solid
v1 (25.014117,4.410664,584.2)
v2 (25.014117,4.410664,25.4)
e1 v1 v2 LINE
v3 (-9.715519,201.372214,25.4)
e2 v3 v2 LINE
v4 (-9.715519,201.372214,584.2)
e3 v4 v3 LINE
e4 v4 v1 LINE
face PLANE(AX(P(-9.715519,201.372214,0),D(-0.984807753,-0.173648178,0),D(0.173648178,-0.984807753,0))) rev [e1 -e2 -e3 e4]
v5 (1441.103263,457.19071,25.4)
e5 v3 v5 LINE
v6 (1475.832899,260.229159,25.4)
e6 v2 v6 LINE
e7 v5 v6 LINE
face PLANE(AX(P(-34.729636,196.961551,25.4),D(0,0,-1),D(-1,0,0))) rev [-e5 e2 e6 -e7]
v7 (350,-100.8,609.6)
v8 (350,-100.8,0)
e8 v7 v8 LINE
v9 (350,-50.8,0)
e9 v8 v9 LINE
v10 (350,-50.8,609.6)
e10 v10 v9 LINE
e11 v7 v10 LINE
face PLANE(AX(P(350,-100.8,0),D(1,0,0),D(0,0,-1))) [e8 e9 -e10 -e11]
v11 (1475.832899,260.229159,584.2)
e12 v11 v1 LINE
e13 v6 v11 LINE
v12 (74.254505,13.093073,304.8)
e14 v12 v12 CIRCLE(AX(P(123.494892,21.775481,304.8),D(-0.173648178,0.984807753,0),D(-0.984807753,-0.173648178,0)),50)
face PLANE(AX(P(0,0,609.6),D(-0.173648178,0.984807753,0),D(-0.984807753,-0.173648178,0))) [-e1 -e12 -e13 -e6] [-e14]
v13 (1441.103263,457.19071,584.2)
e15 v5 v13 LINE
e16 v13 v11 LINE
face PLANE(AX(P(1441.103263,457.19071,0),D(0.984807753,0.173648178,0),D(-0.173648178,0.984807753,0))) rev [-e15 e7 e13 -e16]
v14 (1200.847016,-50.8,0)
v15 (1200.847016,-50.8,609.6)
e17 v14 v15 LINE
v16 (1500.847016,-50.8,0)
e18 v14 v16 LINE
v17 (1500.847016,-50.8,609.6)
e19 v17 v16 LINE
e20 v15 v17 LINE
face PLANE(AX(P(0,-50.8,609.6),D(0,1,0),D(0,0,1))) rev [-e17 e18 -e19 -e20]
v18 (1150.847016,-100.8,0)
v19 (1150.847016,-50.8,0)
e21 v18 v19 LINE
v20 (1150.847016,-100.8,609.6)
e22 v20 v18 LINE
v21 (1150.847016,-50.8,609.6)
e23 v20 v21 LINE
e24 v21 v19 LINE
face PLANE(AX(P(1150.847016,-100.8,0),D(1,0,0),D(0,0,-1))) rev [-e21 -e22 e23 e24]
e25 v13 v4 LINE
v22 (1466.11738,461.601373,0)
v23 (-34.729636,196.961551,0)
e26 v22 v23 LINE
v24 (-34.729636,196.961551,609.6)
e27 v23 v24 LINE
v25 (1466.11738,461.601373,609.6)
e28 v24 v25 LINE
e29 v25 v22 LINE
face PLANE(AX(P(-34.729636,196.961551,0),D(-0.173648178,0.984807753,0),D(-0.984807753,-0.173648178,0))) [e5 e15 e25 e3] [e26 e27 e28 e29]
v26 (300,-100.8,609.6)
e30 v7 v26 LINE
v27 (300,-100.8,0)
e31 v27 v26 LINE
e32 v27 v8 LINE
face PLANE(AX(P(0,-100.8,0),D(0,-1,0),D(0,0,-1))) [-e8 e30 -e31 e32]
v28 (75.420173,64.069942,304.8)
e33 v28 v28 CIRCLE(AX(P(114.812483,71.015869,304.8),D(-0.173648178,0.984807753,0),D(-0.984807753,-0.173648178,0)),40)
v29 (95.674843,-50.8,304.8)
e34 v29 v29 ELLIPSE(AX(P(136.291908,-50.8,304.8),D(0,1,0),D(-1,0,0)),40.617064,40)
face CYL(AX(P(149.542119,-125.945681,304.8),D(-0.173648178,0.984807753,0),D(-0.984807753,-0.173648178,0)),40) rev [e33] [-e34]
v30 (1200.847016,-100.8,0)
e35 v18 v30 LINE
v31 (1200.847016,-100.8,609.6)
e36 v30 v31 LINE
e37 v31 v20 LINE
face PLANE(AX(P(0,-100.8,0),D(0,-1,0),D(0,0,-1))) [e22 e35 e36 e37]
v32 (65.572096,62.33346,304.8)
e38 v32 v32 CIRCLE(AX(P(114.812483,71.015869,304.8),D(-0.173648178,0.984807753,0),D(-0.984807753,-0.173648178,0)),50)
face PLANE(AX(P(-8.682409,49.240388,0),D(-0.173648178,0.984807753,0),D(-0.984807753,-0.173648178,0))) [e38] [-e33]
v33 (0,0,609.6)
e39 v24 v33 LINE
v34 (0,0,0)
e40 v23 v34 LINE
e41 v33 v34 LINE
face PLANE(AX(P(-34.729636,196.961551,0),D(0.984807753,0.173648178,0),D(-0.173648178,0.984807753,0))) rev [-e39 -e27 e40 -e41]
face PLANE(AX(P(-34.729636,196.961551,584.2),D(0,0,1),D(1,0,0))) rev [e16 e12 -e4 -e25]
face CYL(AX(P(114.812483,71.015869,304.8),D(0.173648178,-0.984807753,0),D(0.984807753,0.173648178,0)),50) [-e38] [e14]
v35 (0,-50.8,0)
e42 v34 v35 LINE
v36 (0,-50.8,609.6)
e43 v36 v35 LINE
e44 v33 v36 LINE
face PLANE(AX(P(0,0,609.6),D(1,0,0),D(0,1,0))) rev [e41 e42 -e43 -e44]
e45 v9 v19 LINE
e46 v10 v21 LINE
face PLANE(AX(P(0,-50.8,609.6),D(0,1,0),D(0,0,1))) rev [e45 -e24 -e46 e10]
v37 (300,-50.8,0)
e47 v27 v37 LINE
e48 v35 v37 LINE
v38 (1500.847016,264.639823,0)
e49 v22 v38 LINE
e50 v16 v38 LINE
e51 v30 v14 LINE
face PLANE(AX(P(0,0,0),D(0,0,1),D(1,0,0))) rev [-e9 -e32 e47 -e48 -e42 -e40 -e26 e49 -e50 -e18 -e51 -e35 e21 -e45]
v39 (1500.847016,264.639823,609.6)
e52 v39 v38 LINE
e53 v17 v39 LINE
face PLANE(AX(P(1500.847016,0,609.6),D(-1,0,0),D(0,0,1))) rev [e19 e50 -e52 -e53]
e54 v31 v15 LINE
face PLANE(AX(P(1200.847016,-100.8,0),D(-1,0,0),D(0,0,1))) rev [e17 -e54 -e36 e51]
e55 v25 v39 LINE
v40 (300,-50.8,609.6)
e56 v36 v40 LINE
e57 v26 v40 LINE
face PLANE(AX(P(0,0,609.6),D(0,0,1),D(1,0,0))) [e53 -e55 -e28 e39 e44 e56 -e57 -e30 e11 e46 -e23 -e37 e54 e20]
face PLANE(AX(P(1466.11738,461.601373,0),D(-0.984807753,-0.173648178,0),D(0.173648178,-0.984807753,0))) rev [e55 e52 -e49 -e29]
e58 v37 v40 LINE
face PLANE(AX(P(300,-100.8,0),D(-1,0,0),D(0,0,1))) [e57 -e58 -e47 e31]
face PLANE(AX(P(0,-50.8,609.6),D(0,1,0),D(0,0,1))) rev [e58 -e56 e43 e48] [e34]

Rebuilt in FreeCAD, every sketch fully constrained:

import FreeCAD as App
import Part
import Sketcher
from FreeCAD import Vector
Q = App.Units.Quantity

doc = App.newDocument("Part")
body = doc.addObject("PartDesign::Body", "Body")

sketch1 = body.newObject("Sketcher::SketchObject", "Sketch")
sketch1.AttachmentSupport = (doc.getObject("XY_Plane"), [""])
sketch1.MapMode = "FlatFace"
sketch1.addGeometry([
    Part.LineSegment(Vector(1501, 0, 0), Vector(1501, 265, 0)),
    Part.LineSegment(Vector(1501, 265, 0), Vector(0, 0, 0)),
    Part.LineSegment(Vector(0, 0, 0), Vector(0, -51, 0)),
    Part.LineSegment(Vector(0, -51, 0), Vector(1501, -51, 0)),
    Part.LineSegment(Vector(1501, -51, 0), Vector(1501, 0, 0)),
], False)
sketch1.addConstraint([
    Sketcher.Constraint("Coincident", 0, 2, 1, 1),
    Sketcher.Constraint("Coincident", 1, 2, 2, 1),
    Sketcher.Constraint("Coincident", 2, 2, 3, 1),
    Sketcher.Constraint("Coincident", 3, 2, 4, 1),
    Sketcher.Constraint("Coincident", 4, 2, 0, 1),
    Sketcher.Constraint("Vertical", 0),
    Sketcher.Constraint("Vertical", 2),
    Sketcher.Constraint("Horizontal", 3),
    Sketcher.Constraint("Vertical", 4),
    Sketcher.Constraint("Coincident", 1, 2, -1, 1),
    Sketcher.Constraint("PointOnObject", 4, 2, -1),
    Sketcher.Constraint("DistanceY", 2, 2, 2, 1, Q("2 in")),
    Sketcher.Constraint("Distance", 1, Q("60 in")),
    Sketcher.Constraint("Angle", 1, Q("-170 deg")),
])
pad1 = body.newObject("PartDesign::Pad", "Pad")
pad1.Profile = sketch1
pad1.Length = Q("24 in")

sketch2 = body.newObject("Sketcher::SketchObject", "Sketch001")
sketch2.Placement = App.Placement(Vector(0, 0, 0), App.Rotation(Vector(0.984807753, 0.173648178, 0), Vector(0, 0, -1), Vector(-0.173648178, 0.984807753, 0), "ZXY"))
sketch2.addGeometry([
    Part.LineSegment(Vector(1524, 0, 0), Vector(0, 0, 0)),
    Part.LineSegment(Vector(0, 0, 0), Vector(0, -610, 0)),
    Part.LineSegment(Vector(0, -610, 0), Vector(1524, -610, 0)),
    Part.LineSegment(Vector(1524, -610, 0), Vector(1524, 0, 0)),
    Part.LineSegment(Vector(1499, -584, 0), Vector(25, -584, 0)),
    Part.LineSegment(Vector(25, -584, 0), Vector(25, -25, 0)),
    Part.LineSegment(Vector(25, -25, 0), Vector(1499, -25, 0)),
    Part.LineSegment(Vector(1499, -25, 0), Vector(1499, -584, 0)),
], False)
sketch2.addConstraint([
    Sketcher.Constraint("Coincident", 0, 2, 1, 1),
    Sketcher.Constraint("Coincident", 1, 2, 2, 1),
    Sketcher.Constraint("Coincident", 2, 2, 3, 1),
    Sketcher.Constraint("Coincident", 3, 2, 0, 1),
    Sketcher.Constraint("Coincident", 4, 2, 5, 1),
    Sketcher.Constraint("Coincident", 5, 2, 6, 1),
    Sketcher.Constraint("Coincident", 6, 2, 7, 1),
    Sketcher.Constraint("Coincident", 7, 2, 4, 1),
    Sketcher.Constraint("Horizontal", 0),
    Sketcher.Constraint("Vertical", 1),
    Sketcher.Constraint("Horizontal", 2),
    Sketcher.Constraint("Vertical", 3),
    Sketcher.Constraint("Horizontal", 4),
    Sketcher.Constraint("Vertical", 5),
    Sketcher.Constraint("Horizontal", 6),
    Sketcher.Constraint("Vertical", 7),
    Sketcher.Constraint("Coincident", 0, 2, -1, 1),
    Sketcher.Constraint("DistanceX", 0, 2, 0, 1, Q("60 in")),
    Sketcher.Constraint("DistanceX", 4, 2, 4, 1, Q("58 in")),
    Sketcher.Constraint("DistanceY", 1, 2, 1, 1, Q("24 in")),
    Sketcher.Constraint("DistanceY", 5, 1, 5, 2, Q("22 in")),
    Sketcher.Constraint("DistanceX", -1, 1, 4, 2, Q("1 in")),
    Sketcher.Constraint("DistanceY", 4, 2, -1, 1, Q("23 in")),
])
pad2 = body.newObject("PartDesign::Pad", "Pad001")
pad2.Profile = sketch2
pad2.Length = 200

sketch3 = body.newObject("Sketcher::SketchObject", "Sketch002")
sketch3.Placement = App.Placement(Vector(0, 0, 0), App.Rotation(Vector(0.984807753, 0.173648178, 0), Vector(0, 0, -1), Vector(-0.173648178, 0.984807753, 0), "ZXY"))
sketch3.addGeometry(Part.Circle(Vector(125, -305, 0), Vector(0, 0, 1), 50), False)
sketch3.addConstraint([
    Sketcher.Constraint("DistanceY", 0, 3, -1, 1, Q("12 in")),
    Sketcher.Constraint("Diameter", 0, 100.0),
    Sketcher.Constraint("DistanceX", -1, 1, 0, 3, 125.4),
])
pad3 = body.newObject("PartDesign::Pad", "Pad002")
pad3.Profile = sketch3
pad3.Length = 50

sketch4 = body.newObject("Sketcher::SketchObject", "Sketch003")
sketch4.Placement = App.Placement(Vector(-8.682409, 49.240388, 0), App.Rotation(Vector(0.984807753, 0.173648178, 0), Vector(0, 0, -1), Vector(-0.173648178, 0.984807753, 0), "ZXY"))
sketch4.addGeometry(Part.Circle(Vector(125, -305, 0), Vector(0, 0, 1), 40), False)
sketch4.addConstraint([
    Sketcher.Constraint("DistanceY", 0, 3, -1, 1, Q("12 in")),
    Sketcher.Constraint("Diameter", 0, 80.0),
    Sketcher.Constraint("DistanceX", -1, 1, 0, 3, 125.4),
])
pocket1 = body.newObject("PartDesign::Pocket", "Pocket")
pocket1.Profile = sketch4
pocket1.Length = 200

sketch5 = body.newObject("Sketcher::SketchObject", "Sketch004")
sketch5.AttachmentSupport = (doc.getObject("XZ_Plane"), [""])
sketch5.MapMode = "FlatFace"
sketch5.AttachmentOffset = App.Placement(Vector(0, 0, 2 * 25.4), App.Rotation())
sketch5.addGeometry([
    Part.LineSegment(Vector(350, 0, 0), Vector(350, 610, 0)),
    Part.LineSegment(Vector(350, 610, 0), Vector(300, 610, 0)),
    Part.LineSegment(Vector(300, 610, 0), Vector(300, 0, 0)),
    Part.LineSegment(Vector(300, 0, 0), Vector(350, 0, 0)),
    Part.LineSegment(Vector(1201, 0, 0), Vector(1201, 610, 0)),
    Part.LineSegment(Vector(1201, 610, 0), Vector(1151, 610, 0)),
    Part.LineSegment(Vector(1151, 610, 0), Vector(1151, 0, 0)),
    Part.LineSegment(Vector(1151, 0, 0), Vector(1201, 0, 0)),
], False)
sketch5.addConstraint([
    Sketcher.Constraint("Coincident", 0, 2, 1, 1),
    Sketcher.Constraint("Coincident", 1, 2, 2, 1),
    Sketcher.Constraint("Coincident", 2, 2, 3, 1),
    Sketcher.Constraint("Coincident", 3, 2, 0, 1),
    Sketcher.Constraint("Coincident", 4, 2, 5, 1),
    Sketcher.Constraint("Coincident", 5, 2, 6, 1),
    Sketcher.Constraint("Coincident", 6, 2, 7, 1),
    Sketcher.Constraint("Coincident", 7, 2, 4, 1),
    Sketcher.Constraint("Vertical", 0),
    Sketcher.Constraint("Horizontal", 1),
    Sketcher.Constraint("Vertical", 2),
    Sketcher.Constraint("Horizontal", 3),
    Sketcher.Constraint("Vertical", 4),
    Sketcher.Constraint("Horizontal", 5),
    Sketcher.Constraint("Vertical", 6),
    Sketcher.Constraint("Horizontal", 7),
    Sketcher.Constraint("PointOnObject", 2, 2, -1),
    Sketcher.Constraint("PointOnObject", 6, 2, -1),
    Sketcher.Constraint("Horizontal", 1, 2, 4, 2),
    Sketcher.Constraint("Equal", 3, 5),
    Sketcher.Constraint("DistanceY", 0, 1, 0, 2, Q("24 in")),
    Sketcher.Constraint("DistanceX", 1, 2, 1, 1, 50.0),
    Sketcher.Constraint("DistanceX", -1, 1, 0, 2, 350.0),
    Sketcher.Constraint("DistanceX", -1, 1, 4, 2, 1200.847016),
])
pad4 = body.newObject("PartDesign::Pad", "Pad003")
pad4.Profile = sketch5
pad4.Length = 50

doc.recompute()
